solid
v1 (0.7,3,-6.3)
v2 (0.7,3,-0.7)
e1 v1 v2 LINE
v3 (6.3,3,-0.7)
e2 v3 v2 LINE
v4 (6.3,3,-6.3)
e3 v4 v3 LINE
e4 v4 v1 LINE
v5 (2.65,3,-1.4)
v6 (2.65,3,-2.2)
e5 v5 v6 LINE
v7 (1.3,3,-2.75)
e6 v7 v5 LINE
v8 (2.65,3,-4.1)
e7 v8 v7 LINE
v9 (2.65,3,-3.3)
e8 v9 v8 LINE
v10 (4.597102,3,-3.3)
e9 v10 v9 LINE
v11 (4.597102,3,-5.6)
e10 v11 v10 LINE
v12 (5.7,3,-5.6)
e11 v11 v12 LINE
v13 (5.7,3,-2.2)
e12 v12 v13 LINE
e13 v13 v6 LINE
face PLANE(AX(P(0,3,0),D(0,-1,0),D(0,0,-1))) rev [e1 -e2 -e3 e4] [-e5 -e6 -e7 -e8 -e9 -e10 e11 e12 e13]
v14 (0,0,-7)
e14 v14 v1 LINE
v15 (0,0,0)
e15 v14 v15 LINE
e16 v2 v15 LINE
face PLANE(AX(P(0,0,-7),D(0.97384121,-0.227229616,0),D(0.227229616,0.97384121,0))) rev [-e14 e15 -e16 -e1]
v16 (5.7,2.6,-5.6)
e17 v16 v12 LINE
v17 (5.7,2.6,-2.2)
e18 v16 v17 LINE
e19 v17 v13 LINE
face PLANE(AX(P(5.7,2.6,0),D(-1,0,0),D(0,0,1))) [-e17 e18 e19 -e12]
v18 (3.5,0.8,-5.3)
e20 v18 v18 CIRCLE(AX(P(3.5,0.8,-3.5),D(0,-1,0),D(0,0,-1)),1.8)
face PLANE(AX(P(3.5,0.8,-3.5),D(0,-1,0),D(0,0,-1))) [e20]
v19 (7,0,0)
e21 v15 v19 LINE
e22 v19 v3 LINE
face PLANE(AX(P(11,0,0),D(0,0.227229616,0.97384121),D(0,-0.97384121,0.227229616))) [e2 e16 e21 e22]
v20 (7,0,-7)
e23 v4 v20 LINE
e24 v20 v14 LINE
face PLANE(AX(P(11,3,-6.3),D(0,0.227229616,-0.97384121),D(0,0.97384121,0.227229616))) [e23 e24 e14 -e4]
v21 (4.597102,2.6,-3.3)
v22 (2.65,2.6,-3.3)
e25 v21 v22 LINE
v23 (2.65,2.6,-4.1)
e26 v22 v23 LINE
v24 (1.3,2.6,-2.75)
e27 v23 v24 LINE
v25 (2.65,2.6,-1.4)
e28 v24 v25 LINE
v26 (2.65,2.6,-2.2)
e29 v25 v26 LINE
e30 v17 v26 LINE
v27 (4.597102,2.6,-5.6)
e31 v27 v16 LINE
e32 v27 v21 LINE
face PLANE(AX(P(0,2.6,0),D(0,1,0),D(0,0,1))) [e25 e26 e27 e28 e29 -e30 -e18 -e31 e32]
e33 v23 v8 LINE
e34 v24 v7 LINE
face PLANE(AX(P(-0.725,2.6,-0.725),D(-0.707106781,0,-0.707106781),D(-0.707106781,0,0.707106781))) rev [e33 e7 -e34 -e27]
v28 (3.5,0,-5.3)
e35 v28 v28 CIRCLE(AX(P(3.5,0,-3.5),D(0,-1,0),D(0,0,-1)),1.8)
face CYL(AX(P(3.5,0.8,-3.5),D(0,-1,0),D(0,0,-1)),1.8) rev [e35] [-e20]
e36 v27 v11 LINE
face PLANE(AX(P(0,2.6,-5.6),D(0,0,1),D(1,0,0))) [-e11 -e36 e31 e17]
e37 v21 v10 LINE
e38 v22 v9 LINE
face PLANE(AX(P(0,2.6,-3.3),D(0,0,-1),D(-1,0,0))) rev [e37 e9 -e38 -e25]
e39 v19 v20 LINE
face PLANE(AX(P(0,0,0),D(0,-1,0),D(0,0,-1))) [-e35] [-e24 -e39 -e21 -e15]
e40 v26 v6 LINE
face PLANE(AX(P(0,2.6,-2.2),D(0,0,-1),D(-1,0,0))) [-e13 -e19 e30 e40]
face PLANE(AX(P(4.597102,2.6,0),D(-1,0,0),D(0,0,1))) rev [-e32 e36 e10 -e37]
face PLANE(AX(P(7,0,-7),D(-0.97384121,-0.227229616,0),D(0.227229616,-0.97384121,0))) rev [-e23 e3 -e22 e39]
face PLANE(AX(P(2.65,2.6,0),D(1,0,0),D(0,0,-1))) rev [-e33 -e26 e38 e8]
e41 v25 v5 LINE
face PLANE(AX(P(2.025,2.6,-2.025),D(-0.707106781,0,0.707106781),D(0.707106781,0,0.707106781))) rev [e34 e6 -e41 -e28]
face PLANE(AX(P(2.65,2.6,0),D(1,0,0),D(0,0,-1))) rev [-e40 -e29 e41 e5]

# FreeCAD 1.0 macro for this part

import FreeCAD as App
import Part
import Sketcher

doc = App.newDocument("Part")
params = doc.addObject("Spreadsheet::Sheet", "Params")
for row, (alias, value) in enumerate([
    ("sketch1_width", "7 mm"),
    ("pad1_length", "3 mm"),
    ("sketch2_height", "3 mm"),
    ("sketch2_width", "0.7 mm"),
    ("pocket1_length", "7 mm"),
    ("sketch3_width", "3 mm"),
    ("sketch3_height", "0.7 mm"),
    ("pocket2_length", "11 mm"),
    ("sketch4_diameter", "3.6 mm"),
    ("pocket3_length", "0.8 mm"),
    ("sketch5_height", "0.8 mm"),
    ("sketch5_height2", "3.4 mm"),
    ("sketch5_height3", "2.3 mm"),
    ("sketch5_width", "3.05 mm"),
    ("pocket4_length", "0.4 mm"),
], start=1):
    params.set(f"A{row}", alias)
    params.set(f"B{row}", "=" + value)
    params.setAlias(f"B{row}", alias)

body = doc.addObject("PartDesign::Body", "Body")

sketch1 = body.newObject("Sketcher::SketchObject", "Sketch")
sketch1.AttachmentSupport = (doc.getObject("XZ_Plane"), [""])
sketch1.MapMode = "FlatFace"
sketch1.addGeometry(Part.LineSegment(App.Vector(0, -7, 0), App.Vector(0, 0, 0)), False)
sketch1.addGeometry(Part.LineSegment(App.Vector(0, 0, 0), App.Vector(7, 0, 0)), False)
sketch1.addGeometry(Part.LineSegment(App.Vector(7, 0, 0), App.Vector(7, -7, 0)), False)
sketch1.addGeometry(Part.LineSegment(App.Vector(7, -7, 0), App.Vector(0, -7, 0)), False)
sketch1.addConstraint(Sketcher.Constraint("Coincident", 0, 2, 1, 1))
sketch1.addConstraint(Sketcher.Constraint("Coincident", 1, 2, 2, 1))
sketch1.addConstraint(Sketcher.Constraint("Coincident", 2, 2, 3, 1))
sketch1.addConstraint(Sketcher.Constraint("Coincident", 3, 2, 0, 1))
sketch1.addConstraint(Sketcher.Constraint("Vertical", 0))
sketch1.addConstraint(Sketcher.Constraint("Horizontal", 1))
sketch1.addConstraint(Sketcher.Constraint("Vertical", 2))
sketch1.addConstraint(Sketcher.Constraint("Horizontal", 3))
sketch1.addConstraint(Sketcher.Constraint("Coincident", 0, 2, -1, 1))
sketch1.addConstraint(Sketcher.Constraint("Equal", 3, 0))
sketch1.addConstraint(Sketcher.Constraint("DistanceX", 1, 1, 1, 2, 7.0))
sketch1.setExpression("Constraints[10]", "Params.sketch1_width")
pad1 = body.newObject("PartDesign::Pad", "Pad")
pad1.Profile = sketch1
pad1.setExpression("Length", "Params.pad1_length")
pad1.Reversed = True

sketch2 = body.newObject("Sketcher::SketchObject", "Sketch001")
sketch2.AttachmentSupport = (doc.getObject("XY_Plane"), [""])
sketch2.MapMode = "FlatFace"
sketch2.addGeometry(Part.LineSegment(App.Vector(0, 0, 0), App.Vector(0.7, 3, 0)), False)
sketch2.addGeometry(Part.LineSegment(App.Vector(0.7, 3, 0), App.Vector(0, 3, 0)), False)
sketch2.addGeometry(Part.LineSegment(App.Vector(0, 3, 0), App.Vector(0, 0, 0)), False)
sketch2.addGeometry(Part.LineSegment(App.Vector(6.3, 3, 0), App.Vector(7, 0, 0)), False)
sketch2.addGeometry(Part.LineSegment(App.Vector(7, 0, 0), App.Vector(7, 3, 0)), False)
sketch2.addGeometry(Part.LineSegment(App.Vector(7, 3, 0), App.Vector(6.3, 3, 0)), False)
sketch2.addConstraint(Sketcher.Constraint("Coincident", 0, 2, 1, 1))
sketch2.addConstraint(Sketcher.Constraint("Coincident", 1, 2, 2, 1))
sketch2.addConstraint(Sketcher.Constraint("Coincident", 2, 2, 0, 1))
sketch2.addConstraint(Sketcher.Constraint("Coincident", 3, 2, 4, 1))
sketch2.addConstraint(Sketcher.Constraint("Coincident", 4, 2, 5, 1))
sketch2.addConstraint(Sketcher.Constraint("Coincident", 5, 2, 3, 1))
sketch2.addConstraint(Sketcher.Constraint("Horizontal", 1))
sketch2.addConstraint(Sketcher.Constraint("Vertical", 2))
sketch2.addConstraint(Sketcher.Constraint("Vertical", 4))
sketch2.addConstraint(Sketcher.Constraint("Horizontal", 5))
sketch2.addConstraint(Sketcher.Constraint("Coincident", 2, 2, -1, 1))
sketch2.addConstraint(Sketcher.Constraint("PointOnObject", 3, 2, -1))
sketch2.addConstraint(Sketcher.Constraint("Horizontal", 1, 2, 4, 2))
sketch2.addConstraint(Sketcher.Constraint("Equal", 1, 5))
sketch2.addConstraint(Sketcher.Constraint("DistanceY", 2, 2, 2, 1, 3.0))
sketch2.addConstraint(Sketcher.Constraint("DistanceX", 1, 2, 1, 1, 0.7))
sketch2.addConstraint(Sketcher.Constraint("DistanceX", -1, 1, 3, 2, 7.0))
sketch2.setExpression("Constraints[14]", "Params.sketch2_height")
sketch2.setExpression("Constraints[15]", "Params.sketch2_width")
pocket1 = body.newObject("PartDesign::Pocket", "Pocket")
pocket1.Profile = sketch2
pocket1.setExpression("Length", "Params.pocket1_length")

sketch3 = body.newObject("Sketcher::SketchObject", "Sketch002")
sketch3.AttachmentSupport = (doc.getObject("YZ_Plane"), [""])
sketch3.MapMode = "FlatFace"
sketch3.addGeometry(Part.LineSegment(App.Vector(0, 0, 0), App.Vector(3, -0.7, 0)), False)
sketch3.addGeometry(Part.LineSegment(App.Vector(3, -0.7, 0), App.Vector(3, 0, 0)), False)
sketch3.addGeometry(Part.LineSegment(App.Vector(3, 0, 0), App.Vector(0, 0, 0)), False)
sketch3.addGeometry(Part.LineSegment(App.Vector(3, -7, 0), App.Vector(3, -6.3, 0)), False)
sketch3.addGeometry(Part.LineSegment(App.Vector(3, -6.3, 0), App.Vector(0, -7, 0)), False)
sketch3.addGeometry(Part.LineSegment(App.Vector(0, -7, 0), App.Vector(3, -7, 0)), False)
sketch3.addConstraint(Sketcher.Constraint("Coincident", 0, 2, 1, 1))
sketch3.addConstraint(Sketcher.Constraint("Coincident", 1, 2, 2, 1))
sketch3.addConstraint(Sketcher.Constraint("Coincident", 2, 2, 0, 1))
sketch3.addConstraint(Sketcher.Constraint("Coincident", 3, 2, 4, 1))
sketch3.addConstraint(Sketcher.Constraint("Coincident", 4, 2, 5, 1))
sketch3.addConstraint(Sketcher.Constraint("Coincident", 5, 2, 3, 1))
sketch3.addConstraint(Sketcher.Constraint("Vertical", 1))
sketch3.addConstraint(Sketcher.Constraint("Horizontal", 2))
sketch3.addConstraint(Sketcher.Constraint("Vertical", 3))
sketch3.addConstraint(Sketcher.Constraint("Horizontal", 5))
sketch3.addConstraint(Sketcher.Constraint("Coincident", 2, 2, -1, 1))
sketch3.addConstraint(Sketcher.Constraint("PointOnObject", 4, 2, -2))
sketch3.addConstraint(Sketcher.Constraint("Vertical", 1, 2, 3, 2))
sketch3.addConstraint(Sketcher.Constraint("Equal", 1, 3))
sketch3.addConstraint(Sketcher.Constraint("DistanceX", 2, 2, 2, 1, 3.0))
sketch3.addConstraint(Sketcher.Constraint("DistanceY", 1, 1, 1, 2, 0.7))
sketch3.addConstraint(Sketcher.Constraint("DistanceY", 4, 2, -1, 1, 7.0))
sketch3.setExpression("Constraints[14]", "Params.sketch3_width")
sketch3.setExpression("Constraints[15]", "Params.sketch3_height")
pocket2 = body.newObject("PartDesign::Pocket", "Pocket001")
pocket2.Profile = sketch3
pocket2.setExpression("Length", "Params.pocket2_length")
pocket2.Reversed = True

sketch4 = body.newObject("Sketcher::SketchObject", "Sketch003")
sketch4.AttachmentSupport = (doc.getObject("XZ_Plane"), [""])
sketch4.MapMode = "FlatFace"
sketch4.addGeometry(Part.Circle(App.Vector(3.5, -3.5, 0), App.Vector(0, 0, 1), 1.8), False)
sketch4.addConstraint(Sketcher.Constraint("Diameter", 0, 3.6))
sketch4.addConstraint(Sketcher.Constraint("DistanceX", -1, 1, 0, 3, 3.5))
sketch4.addConstraint(Sketcher.Constraint("DistanceY", 0, 3, -1, 1, 3.5))
sketch4.setExpression("Constraints[0]", "Params.sketch4_diameter")
pocket3 = body.newObject("PartDesign::Pocket", "Pocket002")
pocket3.Profile = sketch4
pocket3.setExpression("Length", "Params.pocket3_length")

sketch5 = body.newObject("Sketcher::SketchObject", "Sketch004")
sketch5.AttachmentSupport = (doc.getObject("XZ_Plane"), [""])
sketch5.MapMode = "FlatFace"
sketch5.AttachmentOffset = App.Placement(App.Vector(0, 0, -3), App.Rotation())
sketch5.addGeometry(Part.LineSegment(App.Vector(1.3, -2.8, 0), App.Vector(2.6, -1.4, 0)), False)
sketch5.addGeometry(Part.LineSegment(App.Vector(2.6, -1.4, 0), App.Vector(2.6, -2.2, 0)), False)
sketch5.addGeometry(Part.LineSegment(App.Vector(2.6, -2.2, 0), App.Vector(5.7, -2.2, 0)), False)
sketch5.addGeometry(Part.LineSegment(App.Vector(5.7, -2.2, 0), App.Vector(5.7, -5.6, 0)), False)
sketch5.addGeometry(Part.LineSegment(App.Vector(5.7, -5.6, 0), App.Vector(4.6, -5.6, 0)), False)
sketch5.addGeometry(Part.LineSegment(App.Vector(4.6, -5.6, 0), App.Vector(4.6, -3.3, 0)), False)
sketch5.addGeometry(Part.LineSegment(App.Vector(4.6, -3.3, 0), App.Vector(2.6, -3.3, 0)), False)
sketch5.addGeometry(Part.LineSegment(App.Vector(2.6, -3.3, 0), App.Vector(2.6, -4.1, 0)), False)
sketch5.addGeometry(Part.LineSegment(App.Vector(2.6, -4.1, 0), App.Vector(1.3, -2.8, 0)), False)
sketch5.addConstraint(Sketcher.Constraint("Coincident", 0, 2, 1, 1))
sketch5.addConstraint(Sketcher.Constraint("Coincident", 1, 2, 2, 1))
sketch5.addConstraint(Sketcher.Constraint("Coincident", 2, 2, 3, 1))
sketch5.addConstraint(Sketcher.Constraint("Coincident", 3, 2, 4, 1))
sketch5.addConstraint(Sketcher.Constraint("Coincident", 4, 2, 5, 1))
sketch5.addConstraint(Sketcher.Constraint("Coincident", 5, 2, 6, 1))
sketch5.addConstraint(Sketcher.Constraint("Coincident", 6, 2, 7, 1))
sketch5.addConstraint(Sketcher.Constraint("Coincident", 7, 2, 8, 1))
sketch5.addConstraint(Sketcher.Constraint("Coincident", 8, 2, 0, 1))
sketch5.addConstraint(Sketcher.Constraint("Vertical", 1))
sketch5.addConstraint(Sketcher.Constraint("Horizontal", 2))
sketch5.addConstraint(Sketcher.Constraint("Vertical", 3))
sketch5.addConstraint(Sketcher.Constraint("Horizontal", 4))
sketch5.addConstraint(Sketcher.Constraint("Vertical", 5))
sketch5.addConstraint(Sketcher.Constraint("Horizontal", 6))
sketch5.addConstraint(Sketcher.Constraint("Vertical", 7))
sketch5.addConstraint(Sketcher.Constraint("Perpendicular", 0, 8))
sketch5.addConstraint(Sketcher.Constraint("Vertical", 1, 2, 6, 2))
sketch5.addConstraint(Sketcher.Constraint("Equal", 1, 7))
sketch5.addConstraint(Sketcher.Constraint("Equal", 0, 8))
sketch5.addConstraint(Sketcher.Constraint("DistanceY", 1, 2, 1, 1, 0.8))
sketch5.addConstraint(Sketcher.Constraint("DistanceY", 3, 2, 3, 1, 3.4))
sketch5.addConstraint(Sketcher.Constraint("DistanceY", 5, 1, 5, 2, 2.3))
sketch5.addConstraint(Sketcher.Constraint("DistanceX", 2, 1, 2, 2, 3.05))
sketch5.addConstraint(Sketcher.Constraint("DistanceY", 0, 2, -1, 1, 1.4))
sketch5.addConstraint(Sketcher.Constraint("DistanceX", -1, 1, 2, 2, 5.7))
sketch5.addConstraint(Sketcher.Constraint("DistanceX", 4, 2, 4, 1, 1.102898))
sketch5.setExpression("Constraints[20]", "Params.sketch5_height")
sketch5.setExpression("Constraints[21]", "Params.sketch5_height2")
sketch5.setExpression("Constraints[22]", "Params.sketch5_height3")
sketch5.setExpression("Constraints[23]", "Params.sketch5_width")
pocket4 = body.newObject("PartDesign::Pocket", "Pocket003")
pocket4.Profile = sketch5
pocket4.setExpression("Length", "Params.pocket4_length")
pocket4.Reversed = True

doc.recompute()
